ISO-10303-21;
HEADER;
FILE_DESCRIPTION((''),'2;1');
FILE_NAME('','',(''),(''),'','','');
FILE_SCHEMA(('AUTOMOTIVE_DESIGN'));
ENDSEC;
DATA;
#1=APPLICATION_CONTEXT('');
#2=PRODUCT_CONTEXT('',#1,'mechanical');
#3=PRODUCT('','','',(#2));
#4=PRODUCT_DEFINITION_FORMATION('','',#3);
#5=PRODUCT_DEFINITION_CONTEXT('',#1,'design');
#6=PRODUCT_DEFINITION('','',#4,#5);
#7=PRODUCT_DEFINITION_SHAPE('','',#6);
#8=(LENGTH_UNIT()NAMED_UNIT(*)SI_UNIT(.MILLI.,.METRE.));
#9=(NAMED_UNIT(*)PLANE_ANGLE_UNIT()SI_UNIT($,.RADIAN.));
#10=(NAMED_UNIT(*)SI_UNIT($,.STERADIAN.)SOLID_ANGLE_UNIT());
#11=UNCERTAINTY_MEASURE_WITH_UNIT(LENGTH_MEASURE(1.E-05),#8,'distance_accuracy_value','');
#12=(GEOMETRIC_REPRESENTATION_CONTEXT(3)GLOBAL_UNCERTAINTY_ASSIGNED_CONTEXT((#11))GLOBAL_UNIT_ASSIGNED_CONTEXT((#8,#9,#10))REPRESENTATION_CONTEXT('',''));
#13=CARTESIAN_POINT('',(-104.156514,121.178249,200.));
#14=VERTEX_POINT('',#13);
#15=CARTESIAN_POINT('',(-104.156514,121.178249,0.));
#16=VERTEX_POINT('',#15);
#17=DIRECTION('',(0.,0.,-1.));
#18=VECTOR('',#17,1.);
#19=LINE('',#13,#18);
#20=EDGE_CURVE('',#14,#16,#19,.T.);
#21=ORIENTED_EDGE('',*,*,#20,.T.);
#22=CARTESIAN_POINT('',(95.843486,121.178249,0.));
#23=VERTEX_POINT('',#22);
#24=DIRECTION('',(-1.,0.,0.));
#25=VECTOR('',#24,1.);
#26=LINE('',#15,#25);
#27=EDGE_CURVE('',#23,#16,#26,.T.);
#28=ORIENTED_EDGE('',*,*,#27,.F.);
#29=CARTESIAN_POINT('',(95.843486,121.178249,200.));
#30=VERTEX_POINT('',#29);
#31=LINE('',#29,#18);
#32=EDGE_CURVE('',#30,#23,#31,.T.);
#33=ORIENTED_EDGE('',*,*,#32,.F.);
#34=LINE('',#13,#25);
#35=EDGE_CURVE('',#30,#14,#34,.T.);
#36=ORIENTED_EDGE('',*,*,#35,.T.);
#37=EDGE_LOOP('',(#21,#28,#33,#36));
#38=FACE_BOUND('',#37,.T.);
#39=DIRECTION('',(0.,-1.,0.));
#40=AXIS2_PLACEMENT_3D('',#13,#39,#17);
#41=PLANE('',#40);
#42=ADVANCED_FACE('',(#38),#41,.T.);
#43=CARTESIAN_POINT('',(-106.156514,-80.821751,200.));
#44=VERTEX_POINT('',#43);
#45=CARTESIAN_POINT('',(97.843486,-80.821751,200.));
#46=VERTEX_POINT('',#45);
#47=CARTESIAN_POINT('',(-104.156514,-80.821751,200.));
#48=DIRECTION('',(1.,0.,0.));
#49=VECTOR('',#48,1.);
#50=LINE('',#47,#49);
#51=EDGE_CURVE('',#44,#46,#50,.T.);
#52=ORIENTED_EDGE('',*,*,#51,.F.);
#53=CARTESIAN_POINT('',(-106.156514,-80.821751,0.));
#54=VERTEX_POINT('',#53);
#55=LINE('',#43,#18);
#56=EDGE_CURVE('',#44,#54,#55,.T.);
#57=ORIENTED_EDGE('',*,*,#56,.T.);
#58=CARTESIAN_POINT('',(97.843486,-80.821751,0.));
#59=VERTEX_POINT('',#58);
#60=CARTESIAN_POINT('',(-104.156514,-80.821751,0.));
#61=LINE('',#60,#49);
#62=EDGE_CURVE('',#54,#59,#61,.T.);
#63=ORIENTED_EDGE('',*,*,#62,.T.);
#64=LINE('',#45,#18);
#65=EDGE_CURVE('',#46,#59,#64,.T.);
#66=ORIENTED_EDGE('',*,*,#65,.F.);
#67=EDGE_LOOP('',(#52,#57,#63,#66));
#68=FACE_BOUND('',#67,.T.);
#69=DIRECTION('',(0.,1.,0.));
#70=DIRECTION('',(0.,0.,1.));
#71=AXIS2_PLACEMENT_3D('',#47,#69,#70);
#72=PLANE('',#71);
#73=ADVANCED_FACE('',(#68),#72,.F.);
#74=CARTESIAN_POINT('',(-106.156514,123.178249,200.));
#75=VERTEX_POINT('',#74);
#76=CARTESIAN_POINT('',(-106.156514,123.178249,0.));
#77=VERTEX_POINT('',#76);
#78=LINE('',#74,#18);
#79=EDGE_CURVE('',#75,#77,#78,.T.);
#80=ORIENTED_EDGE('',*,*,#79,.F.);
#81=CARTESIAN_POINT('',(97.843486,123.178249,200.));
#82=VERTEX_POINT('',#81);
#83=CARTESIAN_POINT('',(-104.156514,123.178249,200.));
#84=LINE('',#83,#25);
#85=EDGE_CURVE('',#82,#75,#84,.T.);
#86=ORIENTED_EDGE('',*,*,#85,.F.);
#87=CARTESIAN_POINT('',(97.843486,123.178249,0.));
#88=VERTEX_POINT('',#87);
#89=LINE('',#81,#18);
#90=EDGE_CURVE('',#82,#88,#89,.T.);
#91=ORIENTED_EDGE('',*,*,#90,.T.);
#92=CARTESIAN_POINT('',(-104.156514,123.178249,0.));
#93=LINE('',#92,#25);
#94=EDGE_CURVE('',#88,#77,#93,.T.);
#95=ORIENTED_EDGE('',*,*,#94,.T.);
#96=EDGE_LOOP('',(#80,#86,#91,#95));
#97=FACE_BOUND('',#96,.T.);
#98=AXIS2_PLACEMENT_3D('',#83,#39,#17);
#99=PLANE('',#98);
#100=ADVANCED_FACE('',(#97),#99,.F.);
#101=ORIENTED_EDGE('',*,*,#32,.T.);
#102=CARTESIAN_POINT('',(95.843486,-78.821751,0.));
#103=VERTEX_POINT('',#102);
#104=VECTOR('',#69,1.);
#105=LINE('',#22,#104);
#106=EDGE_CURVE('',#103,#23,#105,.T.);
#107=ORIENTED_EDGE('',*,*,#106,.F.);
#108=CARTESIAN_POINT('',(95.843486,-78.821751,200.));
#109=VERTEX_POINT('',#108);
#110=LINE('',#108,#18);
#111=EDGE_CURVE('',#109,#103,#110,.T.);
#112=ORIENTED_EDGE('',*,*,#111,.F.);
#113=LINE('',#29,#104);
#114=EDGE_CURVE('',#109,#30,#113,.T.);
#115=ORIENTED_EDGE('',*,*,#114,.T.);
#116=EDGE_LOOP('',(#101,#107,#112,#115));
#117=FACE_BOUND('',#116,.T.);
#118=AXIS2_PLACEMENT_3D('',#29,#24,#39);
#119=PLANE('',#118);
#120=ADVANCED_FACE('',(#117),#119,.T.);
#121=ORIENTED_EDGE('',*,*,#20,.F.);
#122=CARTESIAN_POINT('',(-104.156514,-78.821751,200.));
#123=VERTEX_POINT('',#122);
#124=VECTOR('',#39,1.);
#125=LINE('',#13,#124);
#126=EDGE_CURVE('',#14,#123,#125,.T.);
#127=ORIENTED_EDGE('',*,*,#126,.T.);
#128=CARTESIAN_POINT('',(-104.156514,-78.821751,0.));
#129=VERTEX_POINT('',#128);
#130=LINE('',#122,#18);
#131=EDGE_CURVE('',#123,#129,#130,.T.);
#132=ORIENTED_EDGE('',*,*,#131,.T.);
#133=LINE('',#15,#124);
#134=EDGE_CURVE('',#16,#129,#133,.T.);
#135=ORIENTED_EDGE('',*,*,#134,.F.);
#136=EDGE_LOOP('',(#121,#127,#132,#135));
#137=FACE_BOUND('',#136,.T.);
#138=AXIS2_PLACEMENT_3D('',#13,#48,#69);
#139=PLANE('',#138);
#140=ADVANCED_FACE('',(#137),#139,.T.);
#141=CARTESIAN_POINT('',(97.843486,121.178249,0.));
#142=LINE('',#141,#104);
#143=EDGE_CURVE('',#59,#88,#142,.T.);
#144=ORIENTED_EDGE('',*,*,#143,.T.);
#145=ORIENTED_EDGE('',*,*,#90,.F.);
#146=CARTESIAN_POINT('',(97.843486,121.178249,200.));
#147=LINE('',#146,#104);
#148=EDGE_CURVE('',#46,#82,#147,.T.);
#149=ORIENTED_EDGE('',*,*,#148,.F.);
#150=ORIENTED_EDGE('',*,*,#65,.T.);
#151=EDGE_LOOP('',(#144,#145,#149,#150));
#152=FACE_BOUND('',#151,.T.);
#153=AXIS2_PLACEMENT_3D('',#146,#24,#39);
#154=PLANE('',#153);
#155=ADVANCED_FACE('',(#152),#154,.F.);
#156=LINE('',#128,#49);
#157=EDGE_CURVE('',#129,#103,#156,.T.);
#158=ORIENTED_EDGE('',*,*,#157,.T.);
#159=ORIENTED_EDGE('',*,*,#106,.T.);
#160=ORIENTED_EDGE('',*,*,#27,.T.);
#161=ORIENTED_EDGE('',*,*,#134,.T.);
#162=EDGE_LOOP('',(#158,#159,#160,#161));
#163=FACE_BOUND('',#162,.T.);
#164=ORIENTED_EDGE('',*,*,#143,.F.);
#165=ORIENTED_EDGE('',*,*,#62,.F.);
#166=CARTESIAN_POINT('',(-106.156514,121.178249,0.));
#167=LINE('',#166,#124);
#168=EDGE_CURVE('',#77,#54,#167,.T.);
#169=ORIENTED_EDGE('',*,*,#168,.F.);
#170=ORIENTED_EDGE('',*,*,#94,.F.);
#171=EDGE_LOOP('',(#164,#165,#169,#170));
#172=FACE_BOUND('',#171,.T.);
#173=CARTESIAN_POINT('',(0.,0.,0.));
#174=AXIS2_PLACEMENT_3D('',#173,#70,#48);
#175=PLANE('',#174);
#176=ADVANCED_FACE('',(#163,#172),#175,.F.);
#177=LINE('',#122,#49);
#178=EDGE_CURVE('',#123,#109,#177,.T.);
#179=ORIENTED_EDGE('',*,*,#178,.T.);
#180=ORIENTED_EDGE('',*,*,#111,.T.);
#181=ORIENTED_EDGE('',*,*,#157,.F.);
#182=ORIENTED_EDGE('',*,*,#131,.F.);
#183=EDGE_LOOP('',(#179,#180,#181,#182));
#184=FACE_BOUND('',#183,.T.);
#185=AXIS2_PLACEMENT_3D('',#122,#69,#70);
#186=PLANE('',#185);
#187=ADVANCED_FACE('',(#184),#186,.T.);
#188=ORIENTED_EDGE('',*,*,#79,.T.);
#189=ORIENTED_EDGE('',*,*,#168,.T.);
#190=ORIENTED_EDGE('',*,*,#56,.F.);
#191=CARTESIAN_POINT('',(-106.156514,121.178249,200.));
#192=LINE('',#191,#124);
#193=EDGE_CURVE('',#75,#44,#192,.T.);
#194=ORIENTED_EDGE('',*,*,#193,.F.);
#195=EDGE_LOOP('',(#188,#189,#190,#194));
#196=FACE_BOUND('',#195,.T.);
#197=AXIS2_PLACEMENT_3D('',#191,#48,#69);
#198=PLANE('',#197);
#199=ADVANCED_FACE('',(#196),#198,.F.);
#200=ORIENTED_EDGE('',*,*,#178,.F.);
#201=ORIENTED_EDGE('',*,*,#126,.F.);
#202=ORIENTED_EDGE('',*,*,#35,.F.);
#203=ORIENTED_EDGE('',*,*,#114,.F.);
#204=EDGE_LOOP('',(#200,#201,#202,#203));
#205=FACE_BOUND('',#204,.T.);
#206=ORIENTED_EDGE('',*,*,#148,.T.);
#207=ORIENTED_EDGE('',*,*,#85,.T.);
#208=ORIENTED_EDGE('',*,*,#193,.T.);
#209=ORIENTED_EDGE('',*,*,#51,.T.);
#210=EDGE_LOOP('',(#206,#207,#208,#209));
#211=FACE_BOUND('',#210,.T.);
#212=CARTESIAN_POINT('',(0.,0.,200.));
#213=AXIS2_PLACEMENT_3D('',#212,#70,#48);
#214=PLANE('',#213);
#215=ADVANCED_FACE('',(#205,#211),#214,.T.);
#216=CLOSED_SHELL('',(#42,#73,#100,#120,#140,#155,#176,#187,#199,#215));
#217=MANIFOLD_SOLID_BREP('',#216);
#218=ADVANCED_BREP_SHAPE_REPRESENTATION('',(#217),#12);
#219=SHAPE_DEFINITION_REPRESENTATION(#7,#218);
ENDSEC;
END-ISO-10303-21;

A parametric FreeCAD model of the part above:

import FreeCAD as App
import Part
import Sketcher

doc = App.newDocument("Part")
body = doc.addObject("PartDesign::Body", "Body")

sketch1 = doc.addObject("Sketcher::SketchObject", "Sketch")
body.addObject(sketch1)
sketch1.AttachmentSupport = (doc.XY_Plane, [""])
sketch1.MapMode = "FlatFace"
sketch1.addGeometry(Part.LineSegment(App.Vector(-106.156514, 123.178249, 0), App.Vector(-106.156514, -80.821751, 0)), False)
sketch1.addGeometry(Part.LineSegment(App.Vector(-106.156514, -80.821751, 0), App.Vector(97.843486, -80.821751, 0)), False)
sketch1.addGeometry(Part.LineSegment(App.Vector(97.843486, -80.821751, 0), App.Vector(97.843486, 123.178249, 0)), False)
sketch1.addGeometry(Part.LineSegment(App.Vector(97.843486, 123.178249, 0), App.Vector(-106.156514, 123.178249, 0)), False)
sketch1.addGeometry(Part.LineSegment(App.Vector(95.843486, -78.821751, 0), App.Vector(-104.156514, -78.821751, 0)), False)
sketch1.addGeometry(Part.LineSegment(App.Vector(-104.156514, -78.821751, 0), App.Vector(-104.156514, 121.178249, 0)), False)
sketch1.addGeometry(Part.LineSegment(App.Vector(-104.156514, 121.178249, 0), App.Vector(95.843486, 121.178249, 0)), False)
sketch1.addGeometry(Part.LineSegment(App.Vector(95.843486, 121.178249, 0), App.Vector(95.843486, -78.821751, 0)), False)
sketch1.addConstraint(Sketcher.Constraint("Coincident", 0, 2, 1, 1))
sketch1.addConstraint(Sketcher.Constraint("Coincident", 1, 2, 2, 1))
sketch1.addConstraint(Sketcher.Constraint("Coincident", 2, 2, 3, 1))
sketch1.addConstraint(Sketcher.Constraint("Coincident", 3, 2, 0, 1))
sketch1.addConstraint(Sketcher.Constraint("Coincident", 4, 2, 5, 1))
sketch1.addConstraint(Sketcher.Constraint("Coincident", 5, 2, 6, 1))
sketch1.addConstraint(Sketcher.Constraint("Coincident", 6, 2, 7, 1))
sketch1.addConstraint(Sketcher.Constraint("Coincident", 7, 2, 4, 1))
sketch1.addConstraint(Sketcher.Constraint("Vertical", 0))
sketch1.addConstraint(Sketcher.Constraint("Horizontal", 1))
sketch1.addConstraint(Sketcher.Constraint("Vertical", 2))
sketch1.addConstraint(Sketcher.Constraint("Horizontal", 3))
sketch1.addConstraint(Sketcher.Constraint("Horizontal", 4))
sketch1.addConstraint(Sketcher.Constraint("Vertical", 5))
sketch1.addConstraint(Sketcher.Constraint("Horizontal", 6))
sketch1.addConstraint(Sketcher.Constraint("Vertical", 7))
sketch1.addConstraint(Sketcher.Constraint("Equal", 3, 0))
sketch1.addConstraint(Sketcher.Constraint("Equal", 6, 5))
sketch1.addConstraint(Sketcher.Constraint("DistanceX", 1, 1, 1, 2, 204.0))
sketch1.addConstraint(Sketcher.Constraint("DistanceX", 4, 2, 4, 1, 200.0))
sketch1.addConstraint(Sketcher.Constraint("DistanceX", 0, 2, 4, 2, 2.0))
sketch1.addConstraint(Sketcher.Constraint("DistanceY", 0, 2, 4, 2, 2.0))
sketch1.addConstraint(Sketcher.Constraint("DistanceY", 0, 2, -1, 1, 80.821751))
sketch1.addConstraint(Sketcher.Constraint("DistanceX", 0, 2, -1, 1, 106.156514))
pad1 = doc.addObject("PartDesign::Pad", "Pad")
body.addObject(pad1)
pad1.Profile = sketch1
pad1.Length = 200

doc.recompute()
